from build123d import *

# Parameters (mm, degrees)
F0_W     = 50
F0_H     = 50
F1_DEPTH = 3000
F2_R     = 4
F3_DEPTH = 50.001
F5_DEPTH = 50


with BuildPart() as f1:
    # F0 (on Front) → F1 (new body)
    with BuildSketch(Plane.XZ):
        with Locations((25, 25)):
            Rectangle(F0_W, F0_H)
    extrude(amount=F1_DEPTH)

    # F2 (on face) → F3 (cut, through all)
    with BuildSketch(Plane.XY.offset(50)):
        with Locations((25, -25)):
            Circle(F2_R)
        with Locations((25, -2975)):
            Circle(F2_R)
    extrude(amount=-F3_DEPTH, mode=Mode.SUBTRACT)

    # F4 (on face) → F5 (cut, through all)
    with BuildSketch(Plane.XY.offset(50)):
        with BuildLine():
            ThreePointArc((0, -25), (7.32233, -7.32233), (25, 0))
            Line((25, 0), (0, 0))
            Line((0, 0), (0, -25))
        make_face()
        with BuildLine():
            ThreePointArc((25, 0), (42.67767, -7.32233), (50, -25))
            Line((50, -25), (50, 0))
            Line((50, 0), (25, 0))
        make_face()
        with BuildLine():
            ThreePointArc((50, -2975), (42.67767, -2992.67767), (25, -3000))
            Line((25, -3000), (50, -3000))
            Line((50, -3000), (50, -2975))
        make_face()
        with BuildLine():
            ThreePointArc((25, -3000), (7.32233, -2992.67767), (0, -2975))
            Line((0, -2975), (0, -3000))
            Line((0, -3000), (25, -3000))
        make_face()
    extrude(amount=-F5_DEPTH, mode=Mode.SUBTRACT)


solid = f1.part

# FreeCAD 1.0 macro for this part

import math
import FreeCAD as App
import Part
import Sketcher
Q = App.Units.Quantity

doc = App.newDocument("Part")
body = doc.addObject("PartDesign::Body", "Body")

# Sketch on XZ plane
sketch1 = body.newObject("Sketcher::SketchObject", "Sketch")
sketch1.AttachmentSupport = (doc.getObject("XZ_Plane"), [""])
sketch1.MapMode = "FlatFace"
sketch1.addGeometry(Part.LineSegment(App.Vector(0, 50, 0), App.Vector(0, 0, 0)), False)
sketch1.addGeometry(Part.LineSegment(App.Vector(0, 0, 0), App.Vector(50, 0, 0)), False)
sketch1.addGeometry(Part.LineSegment(App.Vector(50, 0, 0), App.Vector(50, 50, 0)), False)
sketch1.addGeometry(Part.LineSegment(App.Vector(50, 50, 0), App.Vector(0, 50, 0)), False)
sketch1.addConstraint(Sketcher.Constraint("Coincident", 0, 2, 1, 1))
sketch1.addConstraint(Sketcher.Constraint("Coincident", 1, 2, 2, 1))
sketch1.addConstraint(Sketcher.Constraint("Coincident", 2, 2, 3, 1))
sketch1.addConstraint(Sketcher.Constraint("Coincident", 3, 2, 0, 1))
sketch1.addConstraint(Sketcher.Constraint("Vertical", 0))
sketch1.addConstraint(Sketcher.Constraint("Horizontal", 1))
sketch1.addConstraint(Sketcher.Constraint("Vertical", 2))
sketch1.addConstraint(Sketcher.Constraint("Horizontal", 3))
sketch1.addConstraint(Sketcher.Constraint("Coincident", 0, 2, -1, 1))
sketch1.addConstraint(Sketcher.Constraint("Equal", 3, 0))
sketch1.addConstraint(Sketcher.Constraint("DistanceX", 1, 1, 1, 2, Q("50 mm")))
pad1 = body.newObject("PartDesign::Pad", "Pad")
pad1.Profile = sketch1
pad1.Length = 3000

# Sketch on XY plane
sketch2 = body.newObject("Sketcher::SketchObject", "Sketch001")
sketch2.AttachmentSupport = (doc.getObject("XY_Plane"), [""])
sketch2.MapMode = "FlatFace"
sketch2.AttachmentOffset = App.Placement(App.Vector(0, 0, 50), App.Rotation())
sketch2.addGeometry(Part.Circle(App.Vector(25, -25, 0), App.Vector(0, 0, 1), 4), False)
sketch2.addGeometry(Part.Circle(App.Vector(25, -2975, 0), App.Vector(0, 0, 1), 4), False)
sketch2.addConstraint(Sketcher.Constraint("Equal", 0, 1))
sketch2.addConstraint(Sketcher.Constraint("Vertical", 0, 3, 1, 3))
sketch2.addConstraint(Sketcher.Constraint("Diameter", 0, Q("8 mm")))
sketch2.addConstraint(Sketcher.Constraint("DistanceX", -1, 1, 0, 3, Q("25 mm")))
sketch2.addConstraint(Sketcher.Constraint("DistanceY", 0, 3, -1, 1, Q("25 mm")))
sketch2.addConstraint(Sketcher.Constraint("DistanceY", 1, 3, -1, 1, Q("2975 mm")))
pocket1 = body.newObject("PartDesign::Pocket", "Pocket")
pocket1.Profile = sketch2
pocket1.Type = "ThroughAll"

# Sketch on XY plane
sketch3 = body.newObject("Sketcher::SketchObject", "Sketch002")
sketch3.AttachmentSupport = (doc.getObject("XY_Plane"), [""])
sketch3.MapMode = "FlatFace"
sketch3.AttachmentOffset = App.Placement(App.Vector(0, 0, 50), App.Rotation())
sketch3.addGeometry(Part.ArcOfCircle(Part.Circle(App.Vector(24.999998, -24.999998, 0), App.Vector(0, 0, 1), 24.999998), math.radians(89.999996), math.radians(180.000004)), False)
sketch3.addGeometry(Part.LineSegment(App.Vector(25, 0, 0), App.Vector(0, 0, 0)), False)
sketch3.addGeometry(Part.LineSegment(App.Vector(0, 0, 0), App.Vector(0, -25, 0)), False)
sketch3.addGeometry(Part.ArcOfCircle(Part.Circle(App.Vector(25.000002, -24.999998, 0), App.Vector(0, 0, 1), 24.999998), math.radians(-0.000004), math.radians(90.000004)), False)
sketch3.addGeometry(Part.LineSegment(App.Vector(50, -25, 0), App.Vector(50, 0, 0)), False)
sketch3.addGeometry(Part.LineSegment(App.Vector(50, 0, 0), App.Vector(25, 0, 0)), False)
sketch3.addGeometry(Part.ArcOfCircle(Part.Circle(App.Vector(25.000002, -2975.000002, 0), App.Vector(0, 0, 1), 24.999998), math.radians(-90.000004), math.radians(0.000004)), False)
sketch3.addGeometry(Part.LineSegment(App.Vector(25, -3000, 0), App.Vector(50, -3000, 0)), False)
sketch3.addGeometry(Part.LineSegment(App.Vector(50, -3000, 0), App.Vector(50, -2975, 0)), False)
sketch3.addGeometry(Part.ArcOfCircle(Part.Circle(App.Vector(24.999998, -2975.000002, 0), App.Vector(0, 0, 1), 24.999998), math.radians(179.999996), math.radians(270.000004)), False)
sketch3.addGeometry(Part.LineSegment(App.Vector(0, -2975, 0), App.Vector(0, -3000, 0)), False)
sketch3.addGeometry(Part.LineSegment(App.Vector(0, -3000, 0), App.Vector(25, -3000, 0)), False)
sketch3.addConstraint(Sketcher.Constraint("Tangent", 0, 1, 1, 1))
sketch3.addConstraint(Sketcher.Constraint("Coincident", 1, 2, 2, 1))
sketch3.addConstraint(Sketcher.Constraint("Tangent", 2, 2, 0, 2))
sketch3.addConstraint(Sketcher.Constraint("Tangent", 3, 1, 4, 1))
sketch3.addConstraint(Sketcher.Constraint("Coincident", 4, 2, 5, 1))
sketch3.addConstraint(Sketcher.Constraint("Tangent", 5, 2, 3, 2))
sketch3.addConstraint(Sketcher.Constraint("Tangent", 6, 1, 7, 1))
sketch3.addConstraint(Sketcher.Constraint("Coincident", 7, 2, 8, 1))
sketch3.addConstraint(Sketcher.Constraint("Tangent", 8, 2, 6, 2))
sketch3.addConstraint(Sketcher.Constraint("Tangent", 9, 1, 10, 1))
sketch3.addConstraint(Sketcher.Constraint("Coincident", 10, 2, 11, 1))
sketch3.addConstraint(Sketcher.Constraint("Tangent", 11, 2, 9, 2))
sketch3.addConstraint(Sketcher.Constraint("Horizontal", 1))
sketch3.addConstraint(Sketcher.Constraint("Vertical", 2))
sketch3.addConstraint(Sketcher.Constraint("Vertical", 4))
sketch3.addConstraint(Sketcher.Constraint("Horizontal", 5))
sketch3.addConstraint(Sketcher.Constraint("Horizontal", 7))
sketch3.addConstraint(Sketcher.Constraint("Vertical", 8))
sketch3.addConstraint(Sketcher.Constraint("Vertical", 10))
sketch3.addConstraint(Sketcher.Constraint("Horizontal", 11))
sketch3.addConstraint(Sketcher.Constraint("Coincident", 1, 2, -1, 1))
sketch3.addConstraint(Sketcher.Constraint("Coincident", 3, 3, 0, 3))
sketch3.addConstraint(Sketcher.Constraint("Coincident", 9, 3, 6, 3))
sketch3.addConstraint(Sketcher.Constraint("Equal", 0, 3))
sketch3.addConstraint(Sketcher.Constraint("Equal", 3, 6))
sketch3.addConstraint(Sketcher.Constraint("Equal", 6, 9))
sketch3.addConstraint(Sketcher.Constraint("PointOnObject", 9, 1, -2))
sketch3.addConstraint(Sketcher.Constraint("Radius", 0, Q("24.999998 mm")))
sketch3.addConstraint(Sketcher.Constraint("DistanceY", 6, 3, -1, 1, Q("2975.000002 mm")))
pocket2 = body.newObject("PartDesign::Pocket", "Pocket001")
pocket2.Profile = sketch3
pocket2.Type = "ThroughAll"

doc.recompute()
